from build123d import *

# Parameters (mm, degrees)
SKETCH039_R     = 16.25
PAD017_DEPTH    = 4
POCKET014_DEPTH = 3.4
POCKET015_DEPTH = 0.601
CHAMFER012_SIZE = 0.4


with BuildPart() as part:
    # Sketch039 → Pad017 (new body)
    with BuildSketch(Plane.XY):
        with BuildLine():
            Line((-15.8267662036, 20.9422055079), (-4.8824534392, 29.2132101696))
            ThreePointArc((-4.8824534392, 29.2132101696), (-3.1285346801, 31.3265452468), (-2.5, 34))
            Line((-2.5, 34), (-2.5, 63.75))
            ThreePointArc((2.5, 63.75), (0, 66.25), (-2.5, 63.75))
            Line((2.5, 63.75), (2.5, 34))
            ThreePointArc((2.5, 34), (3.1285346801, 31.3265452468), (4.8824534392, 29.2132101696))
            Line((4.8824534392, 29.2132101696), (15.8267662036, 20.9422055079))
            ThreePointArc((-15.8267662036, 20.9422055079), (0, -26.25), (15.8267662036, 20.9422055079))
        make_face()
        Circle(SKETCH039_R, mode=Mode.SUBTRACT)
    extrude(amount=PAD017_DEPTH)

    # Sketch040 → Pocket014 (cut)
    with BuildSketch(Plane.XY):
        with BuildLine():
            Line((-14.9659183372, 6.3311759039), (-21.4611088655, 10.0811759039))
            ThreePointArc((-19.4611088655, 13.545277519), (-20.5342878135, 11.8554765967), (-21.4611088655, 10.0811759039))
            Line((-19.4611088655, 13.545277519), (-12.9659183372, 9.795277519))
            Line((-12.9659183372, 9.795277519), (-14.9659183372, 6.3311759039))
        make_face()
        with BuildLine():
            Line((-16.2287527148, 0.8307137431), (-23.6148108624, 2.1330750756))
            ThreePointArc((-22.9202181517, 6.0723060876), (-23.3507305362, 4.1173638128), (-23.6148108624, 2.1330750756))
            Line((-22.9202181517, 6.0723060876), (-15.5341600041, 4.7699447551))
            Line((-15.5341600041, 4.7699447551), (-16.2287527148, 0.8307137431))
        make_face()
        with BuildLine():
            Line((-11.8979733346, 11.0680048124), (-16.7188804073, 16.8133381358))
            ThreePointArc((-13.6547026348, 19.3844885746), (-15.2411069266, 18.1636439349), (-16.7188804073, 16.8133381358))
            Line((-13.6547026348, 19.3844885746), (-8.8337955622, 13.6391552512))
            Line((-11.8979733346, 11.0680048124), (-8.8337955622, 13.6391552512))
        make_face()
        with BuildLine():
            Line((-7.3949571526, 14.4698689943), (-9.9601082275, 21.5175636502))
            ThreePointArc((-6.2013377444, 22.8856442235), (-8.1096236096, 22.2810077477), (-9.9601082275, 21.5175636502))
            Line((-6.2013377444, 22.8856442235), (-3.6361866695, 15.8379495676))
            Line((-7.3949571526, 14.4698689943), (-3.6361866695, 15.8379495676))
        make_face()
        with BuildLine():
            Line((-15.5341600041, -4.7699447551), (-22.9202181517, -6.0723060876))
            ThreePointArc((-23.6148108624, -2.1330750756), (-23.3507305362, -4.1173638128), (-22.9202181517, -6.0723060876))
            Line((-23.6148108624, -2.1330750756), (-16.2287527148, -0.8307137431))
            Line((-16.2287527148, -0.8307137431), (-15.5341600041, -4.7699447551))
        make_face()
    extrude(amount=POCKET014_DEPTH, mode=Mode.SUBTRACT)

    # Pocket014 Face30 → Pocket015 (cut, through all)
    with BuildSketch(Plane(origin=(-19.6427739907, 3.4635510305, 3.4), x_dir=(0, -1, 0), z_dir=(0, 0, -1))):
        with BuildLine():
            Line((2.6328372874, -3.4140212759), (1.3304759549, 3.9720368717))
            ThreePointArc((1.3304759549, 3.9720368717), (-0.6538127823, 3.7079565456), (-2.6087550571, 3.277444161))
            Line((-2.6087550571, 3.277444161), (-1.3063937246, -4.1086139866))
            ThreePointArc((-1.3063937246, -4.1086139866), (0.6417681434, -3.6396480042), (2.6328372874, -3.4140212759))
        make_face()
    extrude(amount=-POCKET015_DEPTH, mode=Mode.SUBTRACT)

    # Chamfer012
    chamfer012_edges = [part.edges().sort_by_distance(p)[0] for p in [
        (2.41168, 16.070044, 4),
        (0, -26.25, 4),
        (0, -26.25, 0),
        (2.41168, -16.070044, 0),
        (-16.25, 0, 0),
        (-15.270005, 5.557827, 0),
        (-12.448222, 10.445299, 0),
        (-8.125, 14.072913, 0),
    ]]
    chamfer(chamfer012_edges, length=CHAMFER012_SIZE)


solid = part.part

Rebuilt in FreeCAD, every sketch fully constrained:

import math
import FreeCAD as App
import Part
import Sketcher
Q = App.Units.Quantity


def edges_at(feature, points):
    """Names of the edges that pass closest to the given points."""
    edges = feature.Shape.Edges
    near = lambda p: min(range(len(edges)), key=lambda i: edges[i].distToShape(Part.Vertex(*p))[0])
    return sorted({f"Edge{near(p) + 1}" for p in points})

doc = App.newDocument("Part")
body = doc.addObject("PartDesign::Body", "Body")

# Sketch on XY plane
sketch1 = body.newObject("Sketcher::SketchObject", "Sketch")
sketch1.AttachmentSupport = (doc.getObject("XY_Plane"), [""])
sketch1.MapMode = "FlatFace"
sketch1.addGeometry(Part.LineSegment(App.Vector(-4.882453, 29.21321, 0), App.Vector(-15.826766, 20.942206, 0)), False)
sketch1.addGeometry(Part.ArcOfCircle(Part.Circle(App.Vector(0, 0, 0), App.Vector(0, 0, 1), 26.25), math.radians(127.079633), math.radians(412.920367)), False)
sketch1.addGeometry(Part.LineSegment(App.Vector(15.826766, 20.942206, 0), App.Vector(4.882453, 29.21321, 0)), False)
sketch1.addGeometry(Part.ArcOfCircle(Part.Circle(App.Vector(8.5, 34, 0), App.Vector(0, 0, 1), 6), math.radians(180), math.radians(232.920367)), False)
sketch1.addGeometry(Part.LineSegment(App.Vector(2.5, 34, 0), App.Vector(2.5, 63.75, 0)), False)
sketch1.addGeometry(Part.ArcOfCircle(Part.Circle(App.Vector(0, 63.75, 0), App.Vector(0, 0, 1), 2.5), math.radians(0), math.radians(180)), False)
sketch1.addGeometry(Part.LineSegment(App.Vector(-2.5, 63.75, 0), App.Vector(-2.5, 34, 0)), False)
sketch1.addGeometry(Part.ArcOfCircle(Part.Circle(App.Vector(-8.5, 34, 0), App.Vector(0, 0, 1), 6), math.radians(-52.920367), math.radians(0)), False)
sketch1.addGeometry(Part.Circle(App.Vector(0, 0, 0), App.Vector(0, 0, 1), 16.25), False)
sketch1.addConstraint(Sketcher.Constraint("Tangent", 0, 2, 1, 1))
sketch1.addConstraint(Sketcher.Constraint("Tangent", 1, 2, 2, 1))
sketch1.addConstraint(Sketcher.Constraint("Tangent", 2, 2, 3, 2))
sketch1.addConstraint(Sketcher.Constraint("Tangent", 3, 1, 4, 1))
sketch1.addConstraint(Sketcher.Constraint("Tangent", 4, 2, 5, 1))
sketch1.addConstraint(Sketcher.Constraint("Tangent", 5, 2, 6, 1))
sketch1.addConstraint(Sketcher.Constraint("Tangent", 6, 2, 7, 2))
sketch1.addConstraint(Sketcher.Constraint("Tangent", 7, 1, 0, 1))
sketch1.addConstraint(Sketcher.Constraint("Vertical", 4))
sketch1.addConstraint(Sketcher.Constraint("Vertical", 6))
sketch1.addConstraint(Sketcher.Constraint("Coincident", 1, 3, -1, 1))
sketch1.addConstraint(Sketcher.Constraint("Coincident", 8, 3, -1, 1))
sketch1.addConstraint(Sketcher.Constraint("Equal", 3, 7))
sketch1.addConstraint(Sketcher.Constraint("Symmetric", 3, 3, 7, 3, -2))
sketch1.addConstraint(Sketcher.Constraint("Radius", 3, 6.0))
sketch1.addConstraint(Sketcher.Constraint("Diameter", 8, 32.5))
sketch1.addConstraint(Sketcher.Constraint("Radius", 5, 2.5))
sketch1.addConstraint(Sketcher.Constraint("Radius", 1, 26.25))
sketch1.addConstraint(Sketcher.Constraint("DistanceY", -1, 1, 3, 3, 34.0))
sketch1.addConstraint(Sketcher.Constraint("DistanceY", 4, 1, 4, 2, 29.75))
pad1 = body.newObject("PartDesign::Pad", "Pad")
pad1.Profile = sketch1
pad1.Length = 4

# Sketch on XY plane
sketch2 = body.newObject("Sketcher::SketchObject", "Sketch001")
sketch2.AttachmentSupport = (doc.getObject("XY_Plane"), [""])
sketch2.MapMode = "FlatFace"
sketch2.addGeometry(Part.LineSegment(App.Vector(-21.461109, 10.081176, 0), App.Vector(-14.965918, 6.331176, 0)), False)
sketch2.addGeometry(Part.LineSegment(App.Vector(-14.965918, 6.331176, 0), App.Vector(-12.965918, 9.795278, 0)), False)
sketch2.addGeometry(Part.LineSegment(App.Vector(-12.965918, 9.795278, 0), App.Vector(-19.461109, 13.545278, 0)), False)
sketch2.addGeometry(Part.ArcOfCircle(Part.Circle(App.Vector(0, 0, 0), App.Vector(0, 0, 1), 23.710953), math.radians(145.161397), math.radians(154.838603)), False)
sketch2.addGeometry(Part.LineSegment(App.Vector(-23.614811, 2.133075, 0), App.Vector(-16.228753, 0.830714, 0)), False)
sketch2.addGeometry(Part.LineSegment(App.Vector(-16.228753, 0.830714, 0), App.Vector(-15.53416, 4.769945, 0)), False)
sketch2.addGeometry(Part.LineSegment(App.Vector(-15.53416, 4.769945, 0), App.Vector(-22.920218, 6.072306, 0)), False)
sketch2.addGeometry(Part.ArcOfCircle(Part.Circle(App.Vector(0, 0, 0), App.Vector(0, 0, 1), 23.710953), math.radians(165.161397), math.radians(174.838603)), False)
sketch2.addGeometry(Part.LineSegment(App.Vector(-16.71888, 16.813338, 0), App.Vector(-11.897973, 11.068005, 0)), False)
sketch2.addGeometry(Part.LineSegment(App.Vector(-11.897973, 11.068005, 0), App.Vector(-8.833796, 13.639155, 0)), False)
sketch2.addGeometry(Part.LineSegment(App.Vector(-8.833796, 13.639155, 0), App.Vector(-13.654703, 19.384489, 0)), False)
sketch2.addGeometry(Part.ArcOfCircle(Part.Circle(App.Vector(0, 0, 0), App.Vector(0, 0, 1), 23.710953), math.radians(125.161397), math.radians(134.838603)), False)
sketch2.addGeometry(Part.LineSegment(App.Vector(-9.960108, 21.517564, 0), App.Vector(-7.394957, 14.469869, 0)), False)
sketch2.addGeometry(Part.LineSegment(App.Vector(-7.394957, 14.469869, 0), App.Vector(-3.636187, 15.83795, 0)), False)
sketch2.addGeometry(Part.LineSegment(App.Vector(-3.636187, 15.83795, 0), App.Vector(-6.201338, 22.885644, 0)), False)
sketch2.addGeometry(Part.ArcOfCircle(Part.Circle(App.Vector(0, 0, 0), App.Vector(0, 0, 1), 23.710953), math.radians(105.161397), math.radians(114.838603)), False)
sketch2.addGeometry(Part.LineSegment(App.Vector(-22.920218, -6.072306, 0), App.Vector(-15.53416, -4.769945, 0)), False)
sketch2.addGeometry(Part.LineSegment(App.Vector(-15.53416, -4.769945, 0), App.Vector(-16.228753, -0.830714, 0)), False)
sketch2.addGeometry(Part.LineSegment(App.Vector(-16.228753, -0.830714, 0), App.Vector(-23.614811, -2.133075, 0)), False)
sketch2.addGeometry(Part.ArcOfCircle(Part.Circle(App.Vector(0, 0, 0), App.Vector(0, 0, 1), 23.710953), math.radians(-174.838603), math.radians(-165.161397)), False)
sketch2.addConstraint(Sketcher.Constraint("Coincident", 0, 2, 1, 1))
sketch2.addConstraint(Sketcher.Constraint("Coincident", 1, 2, 2, 1))
sketch2.addConstraint(Sketcher.Constraint("Coincident", 2, 2, 3, 1))
sketch2.addConstraint(Sketcher.Constraint("Coincident", 3, 2, 0, 1))
sketch2.addConstraint(Sketcher.Constraint("Coincident", 4, 2, 5, 1))
sketch2.addConstraint(Sketcher.Constraint("Coincident", 5, 2, 6, 1))
sketch2.addConstraint(Sketcher.Constraint("Coincident", 6, 2, 7, 1))
sketch2.addConstraint(Sketcher.Constraint("Coincident", 7, 2, 4, 1))
sketch2.addConstraint(Sketcher.Constraint("Coincident", 8, 2, 9, 1))
sketch2.addConstraint(Sketcher.Constraint("Coincident", 9, 2, 10, 1))
sketch2.addConstraint(Sketcher.Constraint("Coincident", 10, 2, 11, 1))
sketch2.addConstraint(Sketcher.Constraint("Coincident", 11, 2, 8, 1))
sketch2.addConstraint(Sketcher.Constraint("Coincident", 12, 2, 13, 1))
sketch2.addConstraint(Sketcher.Constraint("Coincident", 13, 2, 14, 1))
sketch2.addConstraint(Sketcher.Constraint("Coincident", 14, 2, 15, 1))
sketch2.addConstraint(Sketcher.Constraint("Coincident", 15, 2, 12, 1))
sketch2.addConstraint(Sketcher.Constraint("Coincident", 16, 2, 17, 1))
sketch2.addConstraint(Sketcher.Constraint("Coincident", 17, 2, 18, 1))
sketch2.addConstraint(Sketcher.Constraint("Coincident", 18, 2, 19, 1))
sketch2.addConstraint(Sketcher.Constraint("Coincident", 19, 2, 16, 1))
sketch2.addConstraint(Sketcher.Constraint("Coincident", 3, 3, -1, 1))
sketch2.addConstraint(Sketcher.Constraint("Coincident", 7, 3, -1, 1))
sketch2.addConstraint(Sketcher.Constraint("Coincident", 11, 3, -1, 1))
sketch2.addConstraint(Sketcher.Constraint("Coincident", 15, 3, -1, 1))
sketch2.addConstraint(Sketcher.Constraint("Coincident", 19, 3, -1, 1))
sketch2.addConstraint(Sketcher.Constraint("Equal", 3, 7))
sketch2.addConstraint(Sketcher.Constraint("Equal", 7, 11))
sketch2.addConstraint(Sketcher.Constraint("Equal", 11, 15))
sketch2.addConstraint(Sketcher.Constraint("Equal", 15, 19))
sketch2.addConstraint(Sketcher.Constraint("Symmetric", 5, 2, 16, 2, -1))
sketch2.addConstraint(Sketcher.Constraint("Symmetric", 4, 2, 17, 2, -1))
sketch2.addConstraint(Sketcher.Constraint("Perpendicular", 0, 1))
sketch2.addConstraint(Sketcher.Constraint("Perpendicular", 1, 2))
sketch2.addConstraint(Sketcher.Constraint("Perpendicular", 4, 5))
sketch2.addConstraint(Sketcher.Constraint("Perpendicular", 5, 6))
sketch2.addConstraint(Sketcher.Constraint("Perpendicular", 8, 9))
sketch2.addConstraint(Sketcher.Constraint("Perpendicular", 9, 10))
sketch2.addConstraint(Sketcher.Constraint("Perpendicular", 12, 13))
sketch2.addConstraint(Sketcher.Constraint("Perpendicular", 13, 14))
sketch2.addConstraint(Sketcher.Constraint("Perpendicular", 16, 17))
sketch2.addConstraint(Sketcher.Constraint("Perpendicular", 17, 18))
sketch2.addConstraint(Sketcher.Constraint("Equal", 0, 2))
sketch2.addConstraint(Sketcher.Constraint("Equal", 2, 4))
sketch2.addConstraint(Sketcher.Constraint("Equal", 1, 5))
sketch2.addConstraint(Sketcher.Constraint("Equal", 4, 6))
sketch2.addConstraint(Sketcher.Constraint("Equal", 6, 8))
sketch2.addConstraint(Sketcher.Constraint("Equal", 5, 9))
sketch2.addConstraint(Sketcher.Constraint("Equal", 8, 10))
sketch2.addConstraint(Sketcher.Constraint("Equal", 10, 12))
sketch2.addConstraint(Sketcher.Constraint("Equal", 9, 13))
sketch2.addConstraint(Sketcher.Constraint("Equal", 12, 14))
sketch2.addConstraint(Sketcher.Constraint("Angle", 0, Q("-30 deg")))
sketch2.addConstraint(Sketcher.Constraint("Angle", 4, Q("-10 deg")))
sketch2.addConstraint(Sketcher.Constraint("Angle", 8, Q("-50 deg")))
sketch2.addConstraint(Sketcher.Constraint("Angle", 12, Q("-70 deg")))
sketch2.addConstraint(Sketcher.Constraint("Distance", 1, 4.0))
sketch2.addConstraint(Sketcher.Constraint("Distance", 0, 7.5))
sketch2.addConstraint(Sketcher.Constraint("Radius", 3, 23.710953))
pocket1 = body.newObject("PartDesign::Pocket", "Pocket")
pocket1.Profile = sketch2
pocket1.Length = 3.4
pocket1.Reversed = True

# Sketch on XY plane
sketch3 = body.newObject("Sketcher::SketchObject", "Sketch002")
sketch3.AttachmentSupport = (doc.getObject("XY_Plane"), [""])
sketch3.MapMode = "FlatFace"
sketch3.AttachmentOffset = App.Placement(App.Vector(0, 0, 3.4), App.Rotation())
sketch3.addGeometry(Part.LineSegment(App.Vector(-16.228753, 0.830714, 0), App.Vector(-23.614811, 2.133075, 0)), False)
sketch3.addGeometry(Part.ArcOfCircle(Part.Circle(App.Vector(0, 0, 0), App.Vector(0, 0, 1), 23.710953), math.radians(165.161397), math.radians(174.838603)), False)
sketch3.addGeometry(Part.LineSegment(App.Vector(-22.920218, 6.072306, 0), App.Vector(-15.53416, 4.769945, 0)), False)
sketch3.addGeometry(Part.ArcOfCircle(Part.Circle(App.Vector(0, 0, 0), App.Vector(0, 0, 1), 16.25), math.radians(162.930286), math.radians(177.069714)), False)
sketch3.addConstraint(Sketcher.Constraint("Coincident", 0, 2, 1, 2))
sketch3.addConstraint(Sketcher.Constraint("Coincident", 1, 1, 2, 1))
sketch3.addConstraint(Sketcher.Constraint("Coincident", 2, 2, 3, 1))
sketch3.addConstraint(Sketcher.Constraint("Coincident", 3, 2, 0, 1))
sketch3.addConstraint(Sketcher.Constraint("Coincident", 1, 3, -1, 1))
sketch3.addConstraint(Sketcher.Constraint("Coincident", 3, 3, -1, 1))
sketch3.addConstraint(Sketcher.Constraint("Parallel", 0, 2))
sketch3.addConstraint(Sketcher.Constraint("Equal", 0, 2))
sketch3.addConstraint(Sketcher.Constraint("Angle", 0, Q("170 deg")))
sketch3.addConstraint(Sketcher.Constraint("Radius", 3, 16.25))
sketch3.addConstraint(Sketcher.Constraint("Distance", 0, 7.5))
sketch3.addConstraint(Sketcher.Constraint("Radius", 1, 23.710953))
pocket2 = body.newObject("PartDesign::Pocket", "Pocket001")
pocket2.Profile = sketch3
pocket2.Type = "ThroughAll"
pocket2.Reversed = True
doc.recompute()

chamfer = body.newObject("PartDesign::Chamfer", "Chamfer")
chamfer.Base = (pocket2, edges_at(pocket2, [
    (16.003, -2.822, 4),
    (0, -26.25, 4),
    (0, -26.25, 0),
    (14.073, -8.125, 0),
    (-16.25, 0, 0),
    (-15.27, 5.558, 0),
    (-12.448, 10.445, 0),
    (-8.125, 14.073, 0),
]))
chamfer.Size = 0.4

doc.recompute()
